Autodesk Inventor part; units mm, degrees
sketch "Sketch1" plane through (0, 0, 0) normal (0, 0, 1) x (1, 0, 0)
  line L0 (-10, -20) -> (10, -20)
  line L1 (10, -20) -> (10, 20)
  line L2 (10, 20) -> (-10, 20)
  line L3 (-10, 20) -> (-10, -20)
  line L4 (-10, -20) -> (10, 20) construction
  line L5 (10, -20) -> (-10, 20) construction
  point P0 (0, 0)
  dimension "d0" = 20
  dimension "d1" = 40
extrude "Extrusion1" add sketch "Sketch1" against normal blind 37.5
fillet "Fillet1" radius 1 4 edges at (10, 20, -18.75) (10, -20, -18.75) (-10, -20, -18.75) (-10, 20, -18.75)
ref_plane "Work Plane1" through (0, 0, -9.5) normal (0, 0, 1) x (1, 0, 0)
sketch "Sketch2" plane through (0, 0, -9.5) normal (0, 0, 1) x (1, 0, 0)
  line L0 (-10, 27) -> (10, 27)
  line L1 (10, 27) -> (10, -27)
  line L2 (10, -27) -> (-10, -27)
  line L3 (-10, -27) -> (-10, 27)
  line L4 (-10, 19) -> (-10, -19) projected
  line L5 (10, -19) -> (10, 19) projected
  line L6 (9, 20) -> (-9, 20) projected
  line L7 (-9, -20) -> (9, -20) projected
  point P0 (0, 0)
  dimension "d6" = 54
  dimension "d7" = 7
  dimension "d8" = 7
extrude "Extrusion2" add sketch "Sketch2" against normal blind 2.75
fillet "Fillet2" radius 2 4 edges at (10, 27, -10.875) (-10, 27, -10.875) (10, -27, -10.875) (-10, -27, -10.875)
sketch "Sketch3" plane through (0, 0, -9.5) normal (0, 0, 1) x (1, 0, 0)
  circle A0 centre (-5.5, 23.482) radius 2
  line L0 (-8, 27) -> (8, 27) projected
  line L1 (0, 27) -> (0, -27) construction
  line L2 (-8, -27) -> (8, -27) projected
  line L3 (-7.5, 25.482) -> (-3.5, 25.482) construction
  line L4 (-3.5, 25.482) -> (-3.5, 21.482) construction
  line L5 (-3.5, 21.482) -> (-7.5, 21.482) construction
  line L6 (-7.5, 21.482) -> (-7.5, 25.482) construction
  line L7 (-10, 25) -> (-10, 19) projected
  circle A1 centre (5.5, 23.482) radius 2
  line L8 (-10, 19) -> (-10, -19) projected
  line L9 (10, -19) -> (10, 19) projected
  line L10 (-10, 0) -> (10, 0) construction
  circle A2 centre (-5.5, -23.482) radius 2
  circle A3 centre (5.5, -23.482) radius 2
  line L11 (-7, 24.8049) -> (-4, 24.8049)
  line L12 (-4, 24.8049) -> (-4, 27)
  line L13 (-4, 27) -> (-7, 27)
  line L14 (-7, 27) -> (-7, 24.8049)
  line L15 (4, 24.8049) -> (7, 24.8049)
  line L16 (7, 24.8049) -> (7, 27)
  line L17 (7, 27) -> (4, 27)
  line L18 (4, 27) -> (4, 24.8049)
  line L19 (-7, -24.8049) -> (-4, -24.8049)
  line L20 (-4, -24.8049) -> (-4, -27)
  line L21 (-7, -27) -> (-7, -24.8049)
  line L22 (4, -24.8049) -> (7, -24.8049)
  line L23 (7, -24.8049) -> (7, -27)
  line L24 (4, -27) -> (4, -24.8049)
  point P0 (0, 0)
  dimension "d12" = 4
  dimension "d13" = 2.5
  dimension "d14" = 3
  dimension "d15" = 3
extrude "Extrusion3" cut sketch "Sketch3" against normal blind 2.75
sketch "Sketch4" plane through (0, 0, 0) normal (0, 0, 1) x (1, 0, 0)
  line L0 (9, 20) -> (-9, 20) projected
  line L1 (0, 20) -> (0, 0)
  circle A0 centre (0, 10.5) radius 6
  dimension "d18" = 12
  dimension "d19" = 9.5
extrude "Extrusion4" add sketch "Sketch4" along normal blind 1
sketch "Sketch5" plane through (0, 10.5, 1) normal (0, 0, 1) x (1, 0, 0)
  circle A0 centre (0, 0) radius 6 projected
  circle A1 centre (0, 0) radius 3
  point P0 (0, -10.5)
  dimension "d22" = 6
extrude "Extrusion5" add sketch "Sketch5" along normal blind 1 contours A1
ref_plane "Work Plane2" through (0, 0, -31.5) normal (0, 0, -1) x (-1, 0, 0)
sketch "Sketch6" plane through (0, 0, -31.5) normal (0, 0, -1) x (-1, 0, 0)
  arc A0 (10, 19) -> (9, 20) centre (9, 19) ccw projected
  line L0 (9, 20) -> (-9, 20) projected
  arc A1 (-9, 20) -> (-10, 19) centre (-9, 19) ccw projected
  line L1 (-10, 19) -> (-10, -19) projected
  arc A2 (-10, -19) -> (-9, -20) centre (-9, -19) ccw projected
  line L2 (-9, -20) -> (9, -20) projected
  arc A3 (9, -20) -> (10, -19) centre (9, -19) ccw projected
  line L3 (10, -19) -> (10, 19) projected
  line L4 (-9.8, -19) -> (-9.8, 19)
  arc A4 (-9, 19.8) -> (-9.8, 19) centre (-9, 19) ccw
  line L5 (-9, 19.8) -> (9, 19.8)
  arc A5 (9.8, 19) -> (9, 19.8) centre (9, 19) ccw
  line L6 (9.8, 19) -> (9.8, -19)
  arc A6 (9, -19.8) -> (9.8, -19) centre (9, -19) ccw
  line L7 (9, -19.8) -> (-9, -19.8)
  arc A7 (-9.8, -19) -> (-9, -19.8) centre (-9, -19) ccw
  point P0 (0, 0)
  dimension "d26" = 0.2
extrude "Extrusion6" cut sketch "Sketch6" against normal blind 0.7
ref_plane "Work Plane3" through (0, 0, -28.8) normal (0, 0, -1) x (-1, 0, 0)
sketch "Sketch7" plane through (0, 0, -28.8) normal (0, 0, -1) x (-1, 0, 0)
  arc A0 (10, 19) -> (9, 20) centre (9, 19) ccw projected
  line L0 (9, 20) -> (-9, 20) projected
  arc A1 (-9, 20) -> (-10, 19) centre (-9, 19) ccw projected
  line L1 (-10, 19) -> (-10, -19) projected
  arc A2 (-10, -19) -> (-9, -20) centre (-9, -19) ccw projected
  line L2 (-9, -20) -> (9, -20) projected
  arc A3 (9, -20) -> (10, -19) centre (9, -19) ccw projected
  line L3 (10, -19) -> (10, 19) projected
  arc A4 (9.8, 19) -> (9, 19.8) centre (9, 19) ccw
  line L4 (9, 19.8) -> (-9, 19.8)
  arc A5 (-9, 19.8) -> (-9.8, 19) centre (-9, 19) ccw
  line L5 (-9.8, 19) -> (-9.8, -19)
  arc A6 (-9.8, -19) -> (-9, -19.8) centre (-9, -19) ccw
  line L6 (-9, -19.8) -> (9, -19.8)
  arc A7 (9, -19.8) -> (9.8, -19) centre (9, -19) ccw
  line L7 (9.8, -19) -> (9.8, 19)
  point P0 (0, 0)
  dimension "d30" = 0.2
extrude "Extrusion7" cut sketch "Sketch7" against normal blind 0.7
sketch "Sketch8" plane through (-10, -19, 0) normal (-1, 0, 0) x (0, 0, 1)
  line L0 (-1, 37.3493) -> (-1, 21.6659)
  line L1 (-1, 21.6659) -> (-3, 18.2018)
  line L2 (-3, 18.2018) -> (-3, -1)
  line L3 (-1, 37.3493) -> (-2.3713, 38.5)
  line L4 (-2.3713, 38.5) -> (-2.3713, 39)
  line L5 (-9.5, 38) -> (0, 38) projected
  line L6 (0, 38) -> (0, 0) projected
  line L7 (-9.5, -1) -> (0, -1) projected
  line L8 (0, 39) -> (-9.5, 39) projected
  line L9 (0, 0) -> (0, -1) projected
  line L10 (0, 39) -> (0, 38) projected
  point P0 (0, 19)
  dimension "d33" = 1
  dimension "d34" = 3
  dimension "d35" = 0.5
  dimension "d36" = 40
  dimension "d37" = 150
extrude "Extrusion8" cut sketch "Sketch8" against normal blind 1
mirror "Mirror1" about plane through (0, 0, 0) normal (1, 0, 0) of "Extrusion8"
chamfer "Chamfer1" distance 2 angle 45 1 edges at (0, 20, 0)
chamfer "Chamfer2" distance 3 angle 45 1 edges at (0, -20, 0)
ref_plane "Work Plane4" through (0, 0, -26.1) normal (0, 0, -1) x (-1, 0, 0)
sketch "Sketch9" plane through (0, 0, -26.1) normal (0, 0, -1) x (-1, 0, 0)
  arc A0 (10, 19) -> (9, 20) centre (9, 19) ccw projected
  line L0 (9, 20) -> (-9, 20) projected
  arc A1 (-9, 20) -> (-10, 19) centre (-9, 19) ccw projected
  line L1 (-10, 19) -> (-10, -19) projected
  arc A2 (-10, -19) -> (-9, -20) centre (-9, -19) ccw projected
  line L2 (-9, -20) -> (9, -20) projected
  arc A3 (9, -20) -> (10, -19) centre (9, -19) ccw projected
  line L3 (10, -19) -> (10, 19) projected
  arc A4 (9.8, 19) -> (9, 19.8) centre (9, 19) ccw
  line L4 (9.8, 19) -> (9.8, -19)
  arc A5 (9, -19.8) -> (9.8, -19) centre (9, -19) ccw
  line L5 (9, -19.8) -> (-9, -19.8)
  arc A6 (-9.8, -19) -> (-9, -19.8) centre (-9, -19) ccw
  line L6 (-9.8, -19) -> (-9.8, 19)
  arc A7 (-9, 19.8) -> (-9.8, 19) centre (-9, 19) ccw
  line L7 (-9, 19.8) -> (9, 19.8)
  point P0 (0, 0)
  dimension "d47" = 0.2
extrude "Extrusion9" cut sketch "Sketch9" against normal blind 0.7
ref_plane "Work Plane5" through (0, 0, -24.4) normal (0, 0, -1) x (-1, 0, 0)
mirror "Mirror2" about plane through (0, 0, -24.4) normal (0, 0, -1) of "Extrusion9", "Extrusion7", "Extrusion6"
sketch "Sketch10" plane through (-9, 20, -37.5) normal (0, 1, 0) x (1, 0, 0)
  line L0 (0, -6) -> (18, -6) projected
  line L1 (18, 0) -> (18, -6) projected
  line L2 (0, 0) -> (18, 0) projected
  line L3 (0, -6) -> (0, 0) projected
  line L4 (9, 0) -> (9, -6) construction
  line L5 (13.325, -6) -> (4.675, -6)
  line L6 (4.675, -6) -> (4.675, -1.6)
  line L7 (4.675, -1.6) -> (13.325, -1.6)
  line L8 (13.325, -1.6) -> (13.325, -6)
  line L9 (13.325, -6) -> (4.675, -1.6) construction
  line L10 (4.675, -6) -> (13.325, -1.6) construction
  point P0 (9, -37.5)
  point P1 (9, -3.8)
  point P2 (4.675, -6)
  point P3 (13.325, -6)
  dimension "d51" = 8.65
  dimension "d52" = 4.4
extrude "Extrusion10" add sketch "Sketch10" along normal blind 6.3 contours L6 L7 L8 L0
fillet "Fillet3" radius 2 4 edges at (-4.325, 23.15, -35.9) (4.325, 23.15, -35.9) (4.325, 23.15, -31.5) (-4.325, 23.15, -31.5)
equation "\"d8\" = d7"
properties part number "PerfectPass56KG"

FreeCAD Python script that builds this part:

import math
import FreeCAD as App
import Part
import Sketcher
from FreeCAD import Vector
Q = App.Units.Quantity


def edges_at(feature, points):
    """Names of the edges that pass closest to the given points."""
    edges = feature.Shape.Edges
    near = lambda p: min(range(len(edges)), key=lambda i: edges[i].distToShape(Part.Vertex(*p))[0])
    return sorted({f"Edge{near(p) + 1}" for p in points})


def add_polygon(sketch, points):
    """Adds a closed chain of lines whose ends are joined by coincident constraints."""
    first, n = sketch.GeometryCount, len(points)
    for a, b in zip(points, points[1:] + points[:1]):
        sketch.addGeometry(Part.LineSegment(App.Vector(*a, 0), App.Vector(*b, 0)), False)
    for i in range(n):
        sketch.addConstraint(Sketcher.Constraint("Coincident", first + i, 2, first + (i + 1) % n, 1))

doc = App.newDocument("Part")
body = doc.addObject("PartDesign::Body", "Body")

# Sketch on XY plane
sketch1 = body.newObject("Sketcher::SketchObject", "Sketch")
sketch1.AttachmentSupport = (doc.getObject("XY_Plane"), [""])
sketch1.MapMode = "FlatFace"
add_polygon(sketch1, [(-10, 20), (-10, -20), (10, -20), (10, 20)])  # lines 0-3
sketch1.addConstraint([
    Sketcher.Constraint("Vertical", 0),
    Sketcher.Constraint("Horizontal", 1),
    Sketcher.Constraint("Vertical", 2),
    Sketcher.Constraint("Horizontal", 3),
    Sketcher.Constraint("Symmetric", 0, 2, 2, 2, -1, 1),
    Sketcher.Constraint("DistanceX", 1, 1, 1, 2, 20.0),
    Sketcher.Constraint("DistanceY", 0, 2, 0, 1, 40.0),
])
pad1 = body.newObject("PartDesign::Pad", "Pad")
pad1.Profile = sketch1
pad1.Length = 37.5
pad1.Reversed = True
doc.recompute()

fillet = body.newObject("PartDesign::Fillet", "Fillet")
fillet.Base = (pad1, edges_at(pad1, [
    (10, 20, -18.75),
    (10, -20, -18.75),
    (-10, -20, -18.75),
    (-10, 20, -18.75),
]))
fillet.Radius = 1

# Sketch on XY plane
sketch2 = body.newObject("Sketcher::SketchObject", "Sketch001")
sketch2.AttachmentSupport = (doc.getObject("XY_Plane"), [""])
sketch2.MapMode = "FlatFace"
sketch2.AttachmentOffset = App.Placement(Vector(0, 0, -9.5), App.Rotation())
add_polygon(sketch2, [(10, 27), (-10, 27), (-10, -27), (10, -27)])  # lines 0-3
sketch2.addConstraint([
    Sketcher.Constraint("Horizontal", 0),
    Sketcher.Constraint("Vertical", 1),
    Sketcher.Constraint("Horizontal", 2),
    Sketcher.Constraint("Vertical", 3),
    Sketcher.Constraint("Symmetric", 0, 2, 2, 2, -1, 1),
    Sketcher.Constraint("DistanceY", 1, 2, 1, 1, 54.0),
    Sketcher.Constraint("DistanceX", 0, 2, 0, 1, 20.0),
])
pad2 = body.newObject("PartDesign::Pad", "Pad001")
pad2.Profile = sketch2
pad2.Length = 2.75
pad2.Reversed = True
doc.recompute()

fillet2 = body.newObject("PartDesign::Fillet", "Fillet001")
fillet2.Base = (pad2, edges_at(pad2, [
    (10, 27, -10.875),
    (-10, 27, -10.875),
    (10, -27, -10.875),
    (-10, -27, -10.875),
]))
fillet2.Radius = 2

# Sketch on XY plane
sketch3 = body.newObject("Sketcher::SketchObject", "Sketch002")
sketch3.AttachmentSupport = (doc.getObject("XY_Plane"), [""])
sketch3.MapMode = "FlatFace"
sketch3.AttachmentOffset = App.Placement(Vector(0, 0, -9.5), App.Rotation())
sketch3.addGeometry([
    Part.ArcOfCircle(Part.Circle(Vector(-5.5, 23.5, 0), Vector(0, 0, 1), 2), math.radians(139), math.radians(401)),  # 0
    Part.LineSegment(Vector(-4, 24.8, 0), Vector(-4, 27, 0)),  # 1
    Part.LineSegment(Vector(-4, 27, 0), Vector(-7, 27, 0)),  # 2
    Part.LineSegment(Vector(-7, 27, 0), Vector(-7, 24.8, 0)),  # 3
    Part.LineSegment(Vector(7, 27, 0), Vector(4, 27, 0)),  # 4
    Part.LineSegment(Vector(4, 27, 0), Vector(4, 24.8, 0)),  # 5
    Part.ArcOfCircle(Part.Circle(Vector(5.5, 23.5, 0), Vector(0, 0, 1), 2), math.radians(139), math.radians(401)),  # 6
    Part.LineSegment(Vector(7, 24.8, 0), Vector(7, 27, 0)),  # 7
    Part.LineSegment(Vector(-7, -24.8, 0), Vector(-7, -27, 0)),  # 8
    Part.LineSegment(Vector(-7, -27, 0), Vector(-4, -27, 0)),  # 9
    Part.LineSegment(Vector(-4, -27, 0), Vector(-4, -24.8, 0)),  # 10
    Part.ArcOfCircle(Part.Circle(Vector(-5.5, -23.5, 0), Vector(0, 0, 1), 2), math.radians(-41), math.radians(221)),  # 11
    Part.LineSegment(Vector(4, -24.8, 0), Vector(4, -27, 0)),  # 12
    Part.LineSegment(Vector(4, -27, 0), Vector(7, -27, 0)),  # 13
    Part.LineSegment(Vector(7, -27, 0), Vector(7, -24.8, 0)),  # 14
    Part.ArcOfCircle(Part.Circle(Vector(5.5, -23.5, 0), Vector(0, 0, 1), 2), math.radians(-41), math.radians(221)),  # 15
], False)
sketch3.addConstraint([
    Sketcher.Constraint("Coincident", 0, 2, 1, 1),
    Sketcher.Constraint("Coincident", 1, 2, 2, 1),
    Sketcher.Constraint("Coincident", 2, 2, 3, 1),
    Sketcher.Constraint("Coincident", 3, 2, 0, 1),
    Sketcher.Constraint("Coincident", 4, 2, 5, 1),
    Sketcher.Constraint("Coincident", 5, 2, 6, 1),
    Sketcher.Constraint("Coincident", 6, 2, 7, 1),
    Sketcher.Constraint("Coincident", 7, 2, 4, 1),
    Sketcher.Constraint("Coincident", 8, 2, 9, 1),
    Sketcher.Constraint("Coincident", 9, 2, 10, 1),
    Sketcher.Constraint("Coincident", 10, 2, 11, 1),
    Sketcher.Constraint("Coincident", 11, 2, 8, 1),
    Sketcher.Constraint("Coincident", 12, 2, 13, 1),
    Sketcher.Constraint("Coincident", 13, 2, 14, 1),
    Sketcher.Constraint("Coincident", 14, 2, 15, 1),
    Sketcher.Constraint("Coincident", 15, 2, 12, 1),
    Sketcher.Constraint("Vertical", 1),
    Sketcher.Constraint("Horizontal", 2),
    Sketcher.Constraint("Vertical", 3),
    Sketcher.Constraint("Horizontal", 4),
    Sketcher.Constraint("Vertical", 5),
    Sketcher.Constraint("Vertical", 7),
    Sketcher.Constraint("Vertical", 8),
    Sketcher.Constraint("Horizontal", 9),
    Sketcher.Constraint("Vertical", 10),
    Sketcher.Constraint("Vertical", 12),
    Sketcher.Constraint("Horizontal", 13),
    Sketcher.Constraint("Vertical", 14),
    Sketcher.Constraint("Equal", 0, 6),
    Sketcher.Constraint("Equal", 6, 11),
    Sketcher.Constraint("Equal", 11, 15),
    Sketcher.Constraint("Symmetric", 6, 3, 11, 3, -1, 1),
    Sketcher.Constraint("Symmetric", 0, 3, 15, 3, -1, 1),
    Sketcher.Constraint("Symmetric", 7, 2, 8, 2, -1, 1),
    Sketcher.Constraint("Symmetric", 1, 2, 12, 2, -1, 1),
    Sketcher.Constraint("Symmetric", 0, 3, 6, 3, -2),
    Sketcher.Constraint("Symmetric", 1, 2, 4, 2, -2),
    Sketcher.Constraint("Horizontal", 0, 2, 3, 2),
    Sketcher.Constraint("Horizontal", 5, 2, 6, 2),
    Sketcher.Constraint("Horizontal", 10, 2, 11, 2),
    Sketcher.Constraint("Horizontal", 11, 2, 14, 2),
    Sketcher.Constraint("Radius", 0, 2.0),
    Sketcher.Constraint("DistanceX", 2, 2, 2, 1, 3.0),
    Sketcher.Constraint("DistanceX", 0, 2, -1, 1, 4.0),
    Sketcher.Constraint("DistanceY", -1, 1, 1, 2, 27.0),
    Sketcher.Constraint("DistanceY", 1, 1, 1, 2, 2.195),
])
pocket1 = body.newObject("PartDesign::Pocket", "Pocket")
pocket1.Profile = sketch3
pocket1.Length = 2.75

# Sketch on XY plane
sketch4 = body.newObject("Sketcher::SketchObject", "Sketch003")
sketch4.AttachmentSupport = (doc.getObject("XY_Plane"), [""])
sketch4.MapMode = "FlatFace"
sketch4.addGeometry(Part.Circle(Vector(0, 10, 0), Vector(0, 0, 1), 6), False)
sketch4.addConstraint([
    Sketcher.Constraint("PointOnObject", 0, 3, -2),
    Sketcher.Constraint("Diameter", 0, 12.0),
    Sketcher.Constraint("DistanceY", -1, 1, 0, 3, 10.5),
])
pad3 = body.newObject("PartDesign::Pad", "Pad002")
pad3.Profile = sketch4
pad3.Length = 1

# Sketch on XY plane
sketch5 = body.newObject("Sketcher::SketchObject", "Sketch004")
sketch5.AttachmentSupport = (doc.getObject("XY_Plane"), [""])
sketch5.MapMode = "FlatFace"
sketch5.AttachmentOffset = App.Placement(Vector(0, 0, 1), App.Rotation())
sketch5.addGeometry(Part.Circle(Vector(0, 10.5, 0), Vector(0, 0, 1), 3), False)
sketch5.addConstraint([
    Sketcher.Constraint("PointOnObject", 0, 3, -2),
    Sketcher.Constraint("Diameter", 0, 6.0),
    Sketcher.Constraint("DistanceY", -1, 1, 0, 3, 10.5),
])
pad4 = body.newObject("PartDesign::Pad", "Pad003")
pad4.Profile = sketch5
pad4.Length = 1

# Sketch on XY plane
sketch6 = body.newObject("Sketcher::SketchObject", "Sketch005")
sketch6.AttachmentSupport = (doc.getObject("XY_Plane"), [""])
sketch6.MapMode = "FlatFace"
sketch6.AttachmentOffset = App.Placement(Vector(0, 0, -31.5), App.Rotation())
sketch6.addGeometry([
    Part.LineSegment(Vector(-10, -19, 0), Vector(-10, 19, 0)),  # 0
    Part.ArcOfCircle(Part.Circle(Vector(-9, 19, 0), Vector(0, 0, 1), 1), math.radians(90), math.radians(180)),  # 1
    Part.LineSegment(Vector(-9, 20, 0), Vector(9, 20, 0)),  # 2
    Part.ArcOfCircle(Part.Circle(Vector(9, 19, 0), Vector(0, 0, 1), 1), math.radians(0), math.radians(90)),  # 3
    Part.LineSegment(Vector(10, 19, 0), Vector(10, -19, 0)),  # 4
    Part.ArcOfCircle(Part.Circle(Vector(9, -19, 0), Vector(0, 0, 1), 1), math.radians(-90), math.radians(0)),  # 5
    Part.LineSegment(Vector(9, -20, 0), Vector(-9, -20, 0)),  # 6
    Part.ArcOfCircle(Part.Circle(Vector(-9, -19, 0), Vector(0, 0, 1), 1), math.radians(180), math.radians(270)),  # 7
    Part.ArcOfCircle(Part.Circle(Vector(9, -19, 0), Vector(0, 0, 1), 0.8), math.radians(-90), math.radians(0)),  # 8
    Part.LineSegment(Vector(9.8, -19, 0), Vector(9.8, 19, 0)),  # 9
    Part.ArcOfCircle(Part.Circle(Vector(9, 19, 0), Vector(0, 0, 1), 0.8), math.radians(0), math.radians(90)),  # 10
    Part.LineSegment(Vector(9, 19.8, 0), Vector(-9, 19.8, 0)),  # 11
    Part.ArcOfCircle(Part.Circle(Vector(-9, 19, 0), Vector(0, 0, 1), 0.8), math.radians(90), math.radians(180)),  # 12
    Part.LineSegment(Vector(-9.8, 19, 0), Vector(-9.8, -19, 0)),  # 13
    Part.ArcOfCircle(Part.Circle(Vector(-9, -19, 0), Vector(0, 0, 1), 0.8), math.radians(180), math.radians(270)),  # 14
    Part.LineSegment(Vector(-9, -19.8, 0), Vector(9, -19.8, 0)),  # 15
], False)
sketch6.addConstraint([
    Sketcher.Constraint("Tangent", 0, 2, 1, 2),
    Sketcher.Constraint("Tangent", 1, 1, 2, 1),
    Sketcher.Constraint("Tangent", 2, 2, 3, 2),
    Sketcher.Constraint("Tangent", 3, 1, 4, 1),
    Sketcher.Constraint("Tangent", 4, 2, 5, 2),
    Sketcher.Constraint("Tangent", 5, 1, 6, 1),
    Sketcher.Constraint("Tangent", 6, 2, 7, 2),
    Sketcher.Constraint("Tangent", 7, 1, 0, 1),
    Sketcher.Constraint("Tangent", 8, 2, 9, 1),
    Sketcher.Constraint("Tangent", 9, 2, 10, 1),
    Sketcher.Constraint("Tangent", 10, 2, 11, 1),
    Sketcher.Constraint("Tangent", 11, 2, 12, 1),
    Sketcher.Constraint("Tangent", 12, 2, 13, 1),
    Sketcher.Constraint("Tangent", 13, 2, 14, 1),
    Sketcher.Constraint("Tangent", 14, 2, 15, 1),
    Sketcher.Constraint("Tangent", 15, 2, 8, 1),
    Sketcher.Constraint("Vertical", 0),
    Sketcher.Constraint("Horizontal", 2),
    Sketcher.Constraint("Vertical", 4),
    Sketcher.Constraint("Horizontal", 6),
    Sketcher.Constraint("Vertical", 9),
    Sketcher.Constraint("Horizontal", 11),
    Sketcher.Constraint("Vertical", 13),
    Sketcher.Constraint("Horizontal", 15),
    Sketcher.Constraint("Coincident", 8, 3, 5, 3),
    Sketcher.Constraint("Coincident", 10, 3, 3, 3),
    Sketcher.Constraint("Coincident", 12, 3, 1, 3),
    Sketcher.Constraint("Equal", 1, 3),
    Sketcher.Constraint("Equal", 3, 5),
    Sketcher.Constraint("Equal", 5, 7),
    Sketcher.Constraint("Equal", 12, 14),
    Sketcher.Constraint("Symmetric", 1, 3, 5, 3, -1, 1),
    Sketcher.Constraint("Radius", 1, 1.0),
    Sketcher.Constraint("Radius", 8, 0.8),
    Sketcher.Constraint("DistanceX", 2, 1, 2, 2, 18.0),
    Sketcher.Constraint("DistanceY", 0, 1, 0, 2, 38.0),
])
pocket2 = body.newObject("PartDesign::Pocket", "Pocket001")
pocket2.Profile = sketch6
pocket2.Length = 0.7
pocket2.Reversed = True

# Sketch on XY plane
sketch7 = body.newObject("Sketcher::SketchObject", "Sketch006")
sketch7.AttachmentSupport = (doc.getObject("XY_Plane"), [""])
sketch7.MapMode = "FlatFace"
sketch7.AttachmentOffset = App.Placement(Vector(0, 0, -28.8), App.Rotation())
sketch7.addGeometry([
    Part.LineSegment(Vector(-10, -19, 0), Vector(-10, 19, 0)),  # 0
    Part.ArcOfCircle(Part.Circle(Vector(-9, 19, 0), Vector(0, 0, 1), 1), math.radians(90), math.radians(180)),  # 1
    Part.LineSegment(Vector(-9, 20, 0), Vector(9, 20, 0)),  # 2
    Part.ArcOfCircle(Part.Circle(Vector(9, 19, 0), Vector(0, 0, 1), 1), math.radians(0), math.radians(90)),  # 3
    Part.LineSegment(Vector(10, 19, 0), Vector(10, -19, 0)),  # 4
    Part.ArcOfCircle(Part.Circle(Vector(9, -19, 0), Vector(0, 0, 1), 1), math.radians(-90), math.radians(0)),  # 5
    Part.LineSegment(Vector(9, -20, 0), Vector(-9, -20, 0)),  # 6
    Part.ArcOfCircle(Part.Circle(Vector(-9, -19, 0), Vector(0, 0, 1), 1), math.radians(180), math.radians(270)),  # 7
    Part.ArcOfCircle(Part.Circle(Vector(-9, 19, 0), Vector(0, 0, 1), 0.8), math.radians(90), math.radians(180)),  # 8
    Part.LineSegment(Vector(-9.8, 19, 0), Vector(-9.8, -19, 0)),  # 9
    Part.ArcOfCircle(Part.Circle(Vector(-9, -19, 0), Vector(0, 0, 1), 0.8), math.radians(180), math.radians(270)),  # 10
    Part.LineSegment(Vector(-9, -19.8, 0), Vector(9, -19.8, 0)),  # 11
    Part.ArcOfCircle(Part.Circle(Vector(9, -19, 0), Vector(0, 0, 1), 0.8), math.radians(-90), math.radians(0)),  # 12
    Part.LineSegment(Vector(9.8, -19, 0), Vector(9.8, 19, 0)),  # 13
    Part.ArcOfCircle(Part.Circle(Vector(9, 19, 0), Vector(0, 0, 1), 0.8), math.radians(0), math.radians(90)),  # 14
    Part.LineSegment(Vector(9, 19.8, 0), Vector(-9, 19.8, 0)),  # 15
], False)
sketch7.addConstraint([
    Sketcher.Constraint("Tangent", 0, 2, 1, 2),
    Sketcher.Constraint("Tangent", 1, 1, 2, 1),
    Sketcher.Constraint("Tangent", 2, 2, 3, 2),
    Sketcher.Constraint("Tangent", 3, 1, 4, 1),
    Sketcher.Constraint("Tangent", 4, 2, 5, 2),
    Sketcher.Constraint("Tangent", 5, 1, 6, 1),
    Sketcher.Constraint("Tangent", 6, 2, 7, 2),
    Sketcher.Constraint("Tangent", 7, 1, 0, 1),
    Sketcher.Constraint("Tangent", 8, 2, 9, 1),
    Sketcher.Constraint("Tangent", 9, 2, 10, 1),
    Sketcher.Constraint("Tangent", 10, 2, 11, 1),
    Sketcher.Constraint("Tangent", 11, 2, 12, 1),
    Sketcher.Constraint("Tangent", 12, 2, 13, 1),
    Sketcher.Constraint("Tangent", 13, 2, 14, 1),
    Sketcher.Constraint("Tangent", 14, 2, 15, 1),
    Sketcher.Constraint("Tangent", 15, 2, 8, 1),
    Sketcher.Constraint("Vertical", 0),
    Sketcher.Constraint("Horizontal", 2),
    Sketcher.Constraint("Vertical", 4),
    Sketcher.Constraint("Horizontal", 6),
    Sketcher.Constraint("Vertical", 9),
    Sketcher.Constraint("Horizontal", 11),
    Sketcher.Constraint("Vertical", 13),
    Sketcher.Constraint("Horizontal", 15),
    Sketcher.Constraint("Coincident", 8, 3, 1, 3),
    Sketcher.Constraint("Coincident", 10, 3, 7, 3),
    Sketcher.Constraint("Coincident", 12, 3, 5, 3),
    Sketcher.Constraint("Equal", 1, 3),
    Sketcher.Constraint("Equal", 3, 5),
    Sketcher.Constraint("Equal", 5, 7),
    Sketcher.Constraint("Equal", 12, 14),
    Sketcher.Constraint("Symmetric", 1, 3, 5, 3, -1, 1),
    Sketcher.Constraint("Radius", 1, 1.0),
    Sketcher.Constraint("Radius", 8, 0.8),
    Sketcher.Constraint("DistanceX", 2, 1, 2, 2, 18.0),
    Sketcher.Constraint("DistanceY", 0, 1, 0, 2, 38.0),
])
pocket3 = body.newObject("PartDesign::Pocket", "Pocket002")
pocket3.Profile = sketch7
pocket3.Length = 0.7
pocket3.Reversed = True

# Sketch on YZ plane
sketch8 = body.newObject("Sketcher::SketchObject", "Sketch007")
sketch8.AttachmentSupport = (doc.getObject("YZ_Plane"), [""])
sketch8.MapMode = "FlatFace"
sketch8.AttachmentOffset = App.Placement(Vector(0, 0, -10), App.Rotation())
add_polygon(sketch8, [(18.3, -1), (2.7, -1), (-0.8, -3), (-20, -3), (-20, 0), (20, 0), (20, -2.4), (19.5, -2.4)])  # lines 0-7
sketch8.addConstraint([
    Sketcher.Constraint("Horizontal", 0),
    Sketcher.Constraint("Horizontal", 2),
    Sketcher.Constraint("Vertical", 3),
    Sketcher.Constraint("Horizontal", 4),
    Sketcher.Constraint("Vertical", 5),
    Sketcher.Constraint("Horizontal", 6),
    Sketcher.Constraint("Symmetric", 3, 2, 4, 2, -1, 1),
    Sketcher.Constraint("DistanceX", 4, 1, 4, 2, 40.0),
    Sketcher.Constraint("DistanceY", 3, 1, 3, 2, 3.0),
    Sketcher.Constraint("Angle", 1, Q("-150 deg")),
    Sketcher.Constraint("DistanceX", 6, 2, 6, 1, 0.5),
    Sketcher.Constraint("DistanceY", 0, 2, -1, 1, 1.0),
    Sketcher.Constraint("Angle", 7, Q("130.001 deg")),
    Sketcher.Constraint("DistanceX", 0, 2, 0, 1, 15.6834),
    Sketcher.Constraint("DistanceX", 2, 2, 2, 1, 19.2018),
])
pocket4 = body.newObject("PartDesign::Pocket", "Pocket003")
pocket4.Profile = sketch8
pocket4.Length = 1
pocket4.Reversed = True
doc.recompute()

mirrored = body.newObject("PartDesign::Mirrored", "Mirrored")
mirrored.Originals = [pocket4]
mirrored.MirrorPlane = (doc.getObject("YZ_Plane"), [""])
body.Tip = mirrored
doc.recompute()

chamfer = body.newObject("PartDesign::Chamfer", "Chamfer")
chamfer.Base = (mirrored, edges_at(mirrored, [(0, 20, 0)]))
chamfer.Size = 2
doc.recompute()

chamfer2 = body.newObject("PartDesign::Chamfer", "Chamfer001")
chamfer2.Base = (chamfer, edges_at(chamfer, [(0, -20, 0)]))
chamfer2.Size = 3

# Sketch on XY plane
sketch9 = body.newObject("Sketcher::SketchObject", "Sketch008")
sketch9.AttachmentSupport = (doc.getObject("XY_Plane"), [""])
sketch9.MapMode = "FlatFace"
sketch9.AttachmentOffset = App.Placement(Vector(0, 0, -26.1), App.Rotation())
sketch9.addGeometry([
    Part.LineSegment(Vector(-10, -19, 0), Vector(-10, 19, 0)),  # 0
    Part.ArcOfCircle(Part.Circle(Vector(-9, 19, 0), Vector(0, 0, 1), 1), math.radians(90), math.radians(180)),  # 1
    Part.LineSegment(Vector(-9, 20, 0), Vector(9, 20, 0)),  # 2
    Part.ArcOfCircle(Part.Circle(Vector(9, 19, 0), Vector(0, 0, 1), 1), math.radians(0), math.radians(90)),  # 3
    Part.LineSegment(Vector(10, 19, 0), Vector(10, -19, 0)),  # 4
    Part.ArcOfCircle(Part.Circle(Vector(9, -19, 0), Vector(0, 0, 1), 1), math.radians(-90), math.radians(0)),  # 5
    Part.LineSegment(Vector(9, -20, 0), Vector(-9, -20, 0)),  # 6
    Part.ArcOfCircle(Part.Circle(Vector(-9, -19, 0), Vector(0, 0, 1), 1), math.radians(180), math.radians(270)),  # 7
    Part.ArcOfCircle(Part.Circle(Vector(-9, 19, 0), Vector(0, 0, 1), 0.8), math.radians(90), math.radians(180)),  # 8
    Part.LineSegment(Vector(-9.8, 19, 0), Vector(-9.8, -19, 0)),  # 9
    Part.ArcOfCircle(Part.Circle(Vector(-9, -19, 0), Vector(0, 0, 1), 0.8), math.radians(180), math.radians(270)),  # 10
    Part.LineSegment(Vector(-9, -19.8, 0), Vector(9, -19.8, 0)),  # 11
    Part.ArcOfCircle(Part.Circle(Vector(9, -19, 0), Vector(0, 0, 1), 0.8), math.radians(-90), math.radians(0)),  # 12
    Part.LineSegment(Vector(9.8, -19, 0), Vector(9.8, 19, 0)),  # 13
    Part.ArcOfCircle(Part.Circle(Vector(9, 19, 0), Vector(0, 0, 1), 0.8), math.radians(0), math.radians(90)),  # 14
    Part.LineSegment(Vector(9, 19.8, 0), Vector(-9, 19.8, 0)),  # 15
], False)
sketch9.addConstraint([
    Sketcher.Constraint("Tangent", 0, 2, 1, 2),
    Sketcher.Constraint("Tangent", 1, 1, 2, 1),
    Sketcher.Constraint("Tangent", 2, 2, 3, 2),
    Sketcher.Constraint("Tangent", 3, 1, 4, 1),
    Sketcher.Constraint("Tangent", 4, 2, 5, 2),
    Sketcher.Constraint("Tangent", 5, 1, 6, 1),
    Sketcher.Constraint("Tangent", 6, 2, 7, 2),
    Sketcher.Constraint("Tangent", 7, 1, 0, 1),
    Sketcher.Constraint("Tangent", 8, 2, 9, 1),
    Sketcher.Constraint("Tangent", 9, 2, 10, 1),
    Sketcher.Constraint("Tangent", 10, 2, 11, 1),
    Sketcher.Constraint("Tangent", 11, 2, 12, 1),
    Sketcher.Constraint("Tangent", 12, 2, 13, 1),
    Sketcher.Constraint("Tangent", 13, 2, 14, 1),
    Sketcher.Constraint("Tangent", 14, 2, 15, 1),
    Sketcher.Constraint("Tangent", 15, 2, 8, 1),
    Sketcher.Constraint("Vertical", 0),
    Sketcher.Constraint("Horizontal", 2),
    Sketcher.Constraint("Vertical", 4),
    Sketcher.Constraint("Horizontal", 6),
    Sketcher.Constraint("Vertical", 9),
    Sketcher.Constraint("Horizontal", 11),
    Sketcher.Constraint("Vertical", 13),
    Sketcher.Constraint("Horizontal", 15),
    Sketcher.Constraint("Coincident", 8, 3, 1, 3),
    Sketcher.Constraint("Coincident", 10, 3, 7, 3),
    Sketcher.Constraint("Coincident", 12, 3, 5, 3),
    Sketcher.Constraint("Equal", 1, 3),
    Sketcher.Constraint("Equal", 3, 5),
    Sketcher.Constraint("Equal", 5, 7),
    Sketcher.Constraint("Equal", 12, 14),
    Sketcher.Constraint("Symmetric", 1, 3, 5, 3, -1, 1),
    Sketcher.Constraint("Radius", 1, 1.0),
    Sketcher.Constraint("Radius", 8, 0.8),
    Sketcher.Constraint("DistanceX", 2, 1, 2, 2, 18.0),
    Sketcher.Constraint("DistanceY", 0, 1, 0, 2, 38.0),
])
pocket5 = body.newObject("PartDesign::Pocket", "Pocket004")
pocket5.Profile = sketch9
pocket5.Length = 0.7
pocket5.Reversed = True
doc.recompute()

datumplane = body.newObject("PartDesign::Plane", "DatumPlane")
datumplane.AttachmentSupport = (doc.getObject("XY_Plane"), [""])
datumplane.MapMode = "FlatFace"
datumplane.AttachmentOffset = App.Placement(Vector(0, 0, -24.4), App.Rotation())
mirrored2 = body.newObject("PartDesign::Mirrored", "Mirrored001")
mirrored2.Originals = [pocket5, pocket3, pocket2]
mirrored2.MirrorPlane = (datumplane, [""])
body.Tip = mirrored2

# Sketch on XZ plane
sketch10 = body.newObject("Sketcher::SketchObject", "Sketch009")
sketch10.AttachmentSupport = (doc.getObject("XZ_Plane"), [""])
sketch10.MapMode = "FlatFace"
sketch10.AttachmentOffset = App.Placement(Vector(0, 0, -20), App.Rotation())
add_polygon(sketch10, [(-4.3, -35.9), (-4.3, -31.5), (4.3, -31.5), (4.3, -35.9)])  # lines 0-3
sketch10.addConstraint([
    Sketcher.Constraint("Vertical", 0),
    Sketcher.Constraint("Horizontal", 1),
    Sketcher.Constraint("Vertical", 2),
    Sketcher.Constraint("Horizontal", 3),
    Sketcher.Constraint("DistanceY", 0, 1, 0, 2, 4.4),
    Sketcher.Constraint("DistanceX", 1, 1, 1, 2, 8.65),
    Sketcher.Constraint("DistanceY", 0, 2, -1, 1, 31.5),
    Sketcher.Constraint("DistanceX", 0, 2, -1, 1, 4.325),
])
pad5 = body.newObject("PartDesign::Pad", "Pad004")
pad5.Profile = sketch10
pad5.Length = 6.3
pad5.Reversed = True
doc.recompute()

fillet3 = body.newObject("PartDesign::Fillet", "Fillet002")
fillet3.Base = (pad5, edges_at(pad5, [
    (-4.325, 23.15, -35.9),
    (4.325, 23.15, -35.9),
    (4.325, 23.15, -31.5),
    (-4.325, 23.15, -31.5),
]))
fillet3.Radius = 2

doc.recompute()
